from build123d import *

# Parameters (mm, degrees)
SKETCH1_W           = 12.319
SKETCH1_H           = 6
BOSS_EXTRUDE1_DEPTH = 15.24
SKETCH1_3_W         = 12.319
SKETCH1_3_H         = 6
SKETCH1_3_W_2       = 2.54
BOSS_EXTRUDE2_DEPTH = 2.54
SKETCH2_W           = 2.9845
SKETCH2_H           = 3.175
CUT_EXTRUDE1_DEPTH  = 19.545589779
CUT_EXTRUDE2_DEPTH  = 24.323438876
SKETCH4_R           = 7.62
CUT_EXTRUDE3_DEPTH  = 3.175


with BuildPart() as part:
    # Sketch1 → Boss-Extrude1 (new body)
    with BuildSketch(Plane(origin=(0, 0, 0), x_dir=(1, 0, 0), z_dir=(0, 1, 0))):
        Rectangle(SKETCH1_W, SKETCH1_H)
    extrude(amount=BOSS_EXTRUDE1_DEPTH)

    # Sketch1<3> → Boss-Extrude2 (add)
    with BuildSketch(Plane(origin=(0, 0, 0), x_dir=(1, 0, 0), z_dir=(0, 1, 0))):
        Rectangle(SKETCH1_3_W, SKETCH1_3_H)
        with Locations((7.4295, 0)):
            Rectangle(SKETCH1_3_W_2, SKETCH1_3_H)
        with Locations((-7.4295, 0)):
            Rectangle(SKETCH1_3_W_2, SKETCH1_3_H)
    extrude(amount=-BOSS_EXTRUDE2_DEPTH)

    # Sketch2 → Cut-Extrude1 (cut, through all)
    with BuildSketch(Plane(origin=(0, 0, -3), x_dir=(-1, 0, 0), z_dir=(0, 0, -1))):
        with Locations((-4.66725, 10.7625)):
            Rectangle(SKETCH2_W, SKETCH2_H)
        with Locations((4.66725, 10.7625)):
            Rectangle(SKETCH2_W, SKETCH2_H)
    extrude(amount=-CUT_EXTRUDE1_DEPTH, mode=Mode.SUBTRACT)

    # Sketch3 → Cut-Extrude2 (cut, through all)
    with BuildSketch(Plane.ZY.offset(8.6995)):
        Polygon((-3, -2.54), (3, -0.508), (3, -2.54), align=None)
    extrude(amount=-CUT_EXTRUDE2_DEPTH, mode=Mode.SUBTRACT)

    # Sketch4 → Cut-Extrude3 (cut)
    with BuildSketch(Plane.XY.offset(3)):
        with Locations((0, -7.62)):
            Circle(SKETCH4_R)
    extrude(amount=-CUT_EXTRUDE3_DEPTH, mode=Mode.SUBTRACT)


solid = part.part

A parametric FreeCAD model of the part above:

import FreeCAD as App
import Part
import Sketcher

V = App.Vector
Q = App.Units.Quantity


def add_polygon(sketch, points):
    """Adds a closed chain of lines whose ends are joined by coincident constraints."""
    first, n = sketch.GeometryCount, len(points)
    for a, b in zip(points, points[1:] + points[:1]):
        sketch.addGeometry(Part.LineSegment(App.Vector(*a, 0), App.Vector(*b, 0)), False)
    for i in range(n):
        sketch.addConstraint(Sketcher.Constraint("Coincident", first + i, 2, first + (i + 1) % n, 1))

doc = App.newDocument("Part")
body = doc.addObject("PartDesign::Body", "Body")

sketch1 = body.newObject("Sketcher::SketchObject", "Sketch")
sketch1.AttachmentSupport = (doc.getObject("XZ_Plane"), [""])
sketch1.MapMode = "FlatFace"
add_polygon(sketch1, [(-6, -3), (-6, 3), (6, 3), (6, -3)])
sketch1.addConstraint(Sketcher.Constraint("Vertical", 0))
sketch1.addConstraint(Sketcher.Constraint("Horizontal", 1))
sketch1.addConstraint(Sketcher.Constraint("Vertical", 2))
sketch1.addConstraint(Sketcher.Constraint("Horizontal", 3))
sketch1.addConstraint(Sketcher.Constraint("Symmetric", 0, 2, 2, 2, -1, 1))
sketch1.addConstraint(Sketcher.Constraint("DistanceX", 1, 1, 1, 2, Q("0.485 in")))
sketch1.addConstraint(Sketcher.Constraint("DistanceY", 0, 1, 0, 2, Q("6 mm")))
pad1 = body.newObject("PartDesign::Pad", "Pad")
pad1.Profile = sketch1
pad1.Length = Q("0.6 in")
pad1.Reversed = True

sketch2 = body.newObject("Sketcher::SketchObject", "Sketch001")
sketch2.AttachmentSupport = (doc.getObject("XZ_Plane"), [""])
sketch2.MapMode = "FlatFace"
add_polygon(sketch2, [(9, 3), (9, -3), (-9, -3), (-9, 3)])
sketch2.addConstraint(Sketcher.Constraint("Vertical", 0))
sketch2.addConstraint(Sketcher.Constraint("Horizontal", 1))
sketch2.addConstraint(Sketcher.Constraint("Vertical", 2))
sketch2.addConstraint(Sketcher.Constraint("Horizontal", 3))
sketch2.addConstraint(Sketcher.Constraint("Symmetric", 0, 2, 2, 2, -1, 1))
sketch2.addConstraint(Sketcher.Constraint("DistanceX", 1, 2, 1, 1, Q("0.685 in")))
sketch2.addConstraint(Sketcher.Constraint("DistanceY", 0, 2, 0, 1, Q("6 mm")))
pad2 = body.newObject("PartDesign::Pad", "Pad001")
pad2.Profile = sketch2
pad2.Length = Q("0.1 in")

sketch3 = body.newObject("Sketcher::SketchObject", "Sketch002")
sketch3.AttachmentSupport = (doc.getObject("XY_Plane"), [""])
sketch3.MapMode = "FlatFace"
sketch3.AttachmentOffset = App.Placement(V(0, 0, -3), App.Rotation())
add_polygon(sketch3, [(6.2, 12.3), (6.2, 9.2), (3.2, 9.2), (3.2, 12.3)])
add_polygon(sketch3, [(-3.2, 12.3), (-3.2, 9.2), (-6.2, 9.2), (-6.2, 12.3)])
sketch3.addConstraint(Sketcher.Constraint("Vertical", 0))
sketch3.addConstraint(Sketcher.Constraint("Horizontal", 1))
sketch3.addConstraint(Sketcher.Constraint("Vertical", 2))
sketch3.addConstraint(Sketcher.Constraint("Horizontal", 3))
sketch3.addConstraint(Sketcher.Constraint("Vertical", 4))
sketch3.addConstraint(Sketcher.Constraint("Horizontal", 5))
sketch3.addConstraint(Sketcher.Constraint("Vertical", 6))
sketch3.addConstraint(Sketcher.Constraint("Horizontal", 7))
sketch3.addConstraint(Sketcher.Constraint("Symmetric", 1, 2, 4, 2, -2))
sketch3.addConstraint(Sketcher.Constraint("Symmetric", 3, 2, 6, 2, -2))
sketch3.addConstraint(Sketcher.Constraint("DistanceY", 0, 2, 0, 1, Q("0.125 in")))
sketch3.addConstraint(Sketcher.Constraint("DistanceX", 4, 2, 1, 2, Q("0.25 in")))
sketch3.addConstraint(Sketcher.Constraint("DistanceX", 1, 2, 1, 1, Q("0.1175 in")))
sketch3.addConstraint(Sketcher.Constraint("DistanceY", -1, 1, 0, 2, Q("9.175 mm")))
pocket1 = body.newObject("PartDesign::Pocket", "Pocket")
pocket1.Profile = sketch3
pocket1.Type = "ThroughAll"
pocket1.Reversed = True

sketch4 = body.newObject("Sketcher::SketchObject", "Sketch003")
sketch4.AttachmentSupport = (doc.getObject("YZ_Plane"), [""])
sketch4.MapMode = "FlatFace"
sketch4.AttachmentOffset = App.Placement(V(0, 0, -0.3425 * 25.4), App.Rotation())
add_polygon(sketch4, [(-0.5, 3), (-2.5, -3), (-2.5, 3)])
sketch4.addConstraint(Sketcher.Constraint("Vertical", 1))
sketch4.addConstraint(Sketcher.Constraint("Horizontal", 2))
sketch4.addConstraint(Sketcher.Constraint("DistanceX", 2, 1, 2, 2, Q("0.08 in")))
sketch4.addConstraint(Sketcher.Constraint("DistanceX", 0, 2, -1, 1, Q("0.1 in")))
sketch4.addConstraint(Sketcher.Constraint("DistanceY", 1, 1, 1, 2, Q("6 mm")))
sketch4.addConstraint(Sketcher.Constraint("DistanceY", 0, 2, -1, 1, Q("3 mm")))
pocket2 = body.newObject("PartDesign::Pocket", "Pocket001")
pocket2.Profile = sketch4
pocket2.Type = "ThroughAll"
pocket2.Reversed = True

sketch5 = body.newObject("Sketcher::SketchObject", "Sketch004")
sketch5.AttachmentSupport = (doc.getObject("XY_Plane"), [""])
sketch5.MapMode = "FlatFace"
sketch5.AttachmentOffset = App.Placement(V(0, 0, 3), App.Rotation())
sketch5.addGeometry(Part.Circle(V(0, -8, 0), V(0, 0, 1), 8), False)
sketch5.addConstraint(Sketcher.Constraint("PointOnObject", 0, 3, -2))
sketch5.addConstraint(Sketcher.Constraint("Diameter", 0, Q("0.6 in")))
sketch5.addConstraint(Sketcher.Constraint("DistanceY", 0, 3, -1, 1, Q("0.3 in")))
pocket3 = body.newObject("PartDesign::Pocket", "Pocket002")
pocket3.Profile = sketch5
pocket3.Length = Q("0.125 in")

doc.recompute()
